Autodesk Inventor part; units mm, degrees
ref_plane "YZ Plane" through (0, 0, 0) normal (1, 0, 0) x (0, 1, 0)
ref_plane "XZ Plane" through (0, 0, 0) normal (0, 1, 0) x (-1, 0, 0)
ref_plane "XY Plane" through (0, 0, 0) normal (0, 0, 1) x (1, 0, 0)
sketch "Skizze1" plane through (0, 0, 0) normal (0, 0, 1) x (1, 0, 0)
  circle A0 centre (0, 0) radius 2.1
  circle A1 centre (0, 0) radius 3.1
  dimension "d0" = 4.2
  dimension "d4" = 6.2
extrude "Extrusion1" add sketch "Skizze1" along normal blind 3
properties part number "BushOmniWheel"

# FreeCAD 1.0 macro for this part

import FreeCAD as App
import Part
import Sketcher
from FreeCAD import Vector
Q = App.Units.Quantity

doc = App.newDocument("Part")
body = doc.addObject("PartDesign::Body", "Body")

# Sketch on XY plane
sketch1 = body.newObject("Sketcher::SketchObject", "Sketch")
sketch1.AttachmentSupport = (doc.getObject("XY_Plane"), [""])
sketch1.MapMode = "FlatFace"
sketch1.addGeometry([
    Part.Circle(Vector(0, 0, 0), Vector(0, 0, 1), 3.1),
    Part.Circle(Vector(0, 0, 0), Vector(0, 0, 1), 2.1),
], False)
sketch1.addConstraint([
    Sketcher.Constraint("Coincident", 0, 3, -1, 1),
    Sketcher.Constraint("Coincident", 1, 3, -1, 1),
    Sketcher.Constraint("Diameter", 0, Q("6.2 mm")),
    Sketcher.Constraint("Diameter", 1, Q("4.2 mm")),
])
pad1 = body.newObject("PartDesign::Pad", "Pad")
pad1.Profile = sketch1
pad1.Length = 3

doc.recompute()
